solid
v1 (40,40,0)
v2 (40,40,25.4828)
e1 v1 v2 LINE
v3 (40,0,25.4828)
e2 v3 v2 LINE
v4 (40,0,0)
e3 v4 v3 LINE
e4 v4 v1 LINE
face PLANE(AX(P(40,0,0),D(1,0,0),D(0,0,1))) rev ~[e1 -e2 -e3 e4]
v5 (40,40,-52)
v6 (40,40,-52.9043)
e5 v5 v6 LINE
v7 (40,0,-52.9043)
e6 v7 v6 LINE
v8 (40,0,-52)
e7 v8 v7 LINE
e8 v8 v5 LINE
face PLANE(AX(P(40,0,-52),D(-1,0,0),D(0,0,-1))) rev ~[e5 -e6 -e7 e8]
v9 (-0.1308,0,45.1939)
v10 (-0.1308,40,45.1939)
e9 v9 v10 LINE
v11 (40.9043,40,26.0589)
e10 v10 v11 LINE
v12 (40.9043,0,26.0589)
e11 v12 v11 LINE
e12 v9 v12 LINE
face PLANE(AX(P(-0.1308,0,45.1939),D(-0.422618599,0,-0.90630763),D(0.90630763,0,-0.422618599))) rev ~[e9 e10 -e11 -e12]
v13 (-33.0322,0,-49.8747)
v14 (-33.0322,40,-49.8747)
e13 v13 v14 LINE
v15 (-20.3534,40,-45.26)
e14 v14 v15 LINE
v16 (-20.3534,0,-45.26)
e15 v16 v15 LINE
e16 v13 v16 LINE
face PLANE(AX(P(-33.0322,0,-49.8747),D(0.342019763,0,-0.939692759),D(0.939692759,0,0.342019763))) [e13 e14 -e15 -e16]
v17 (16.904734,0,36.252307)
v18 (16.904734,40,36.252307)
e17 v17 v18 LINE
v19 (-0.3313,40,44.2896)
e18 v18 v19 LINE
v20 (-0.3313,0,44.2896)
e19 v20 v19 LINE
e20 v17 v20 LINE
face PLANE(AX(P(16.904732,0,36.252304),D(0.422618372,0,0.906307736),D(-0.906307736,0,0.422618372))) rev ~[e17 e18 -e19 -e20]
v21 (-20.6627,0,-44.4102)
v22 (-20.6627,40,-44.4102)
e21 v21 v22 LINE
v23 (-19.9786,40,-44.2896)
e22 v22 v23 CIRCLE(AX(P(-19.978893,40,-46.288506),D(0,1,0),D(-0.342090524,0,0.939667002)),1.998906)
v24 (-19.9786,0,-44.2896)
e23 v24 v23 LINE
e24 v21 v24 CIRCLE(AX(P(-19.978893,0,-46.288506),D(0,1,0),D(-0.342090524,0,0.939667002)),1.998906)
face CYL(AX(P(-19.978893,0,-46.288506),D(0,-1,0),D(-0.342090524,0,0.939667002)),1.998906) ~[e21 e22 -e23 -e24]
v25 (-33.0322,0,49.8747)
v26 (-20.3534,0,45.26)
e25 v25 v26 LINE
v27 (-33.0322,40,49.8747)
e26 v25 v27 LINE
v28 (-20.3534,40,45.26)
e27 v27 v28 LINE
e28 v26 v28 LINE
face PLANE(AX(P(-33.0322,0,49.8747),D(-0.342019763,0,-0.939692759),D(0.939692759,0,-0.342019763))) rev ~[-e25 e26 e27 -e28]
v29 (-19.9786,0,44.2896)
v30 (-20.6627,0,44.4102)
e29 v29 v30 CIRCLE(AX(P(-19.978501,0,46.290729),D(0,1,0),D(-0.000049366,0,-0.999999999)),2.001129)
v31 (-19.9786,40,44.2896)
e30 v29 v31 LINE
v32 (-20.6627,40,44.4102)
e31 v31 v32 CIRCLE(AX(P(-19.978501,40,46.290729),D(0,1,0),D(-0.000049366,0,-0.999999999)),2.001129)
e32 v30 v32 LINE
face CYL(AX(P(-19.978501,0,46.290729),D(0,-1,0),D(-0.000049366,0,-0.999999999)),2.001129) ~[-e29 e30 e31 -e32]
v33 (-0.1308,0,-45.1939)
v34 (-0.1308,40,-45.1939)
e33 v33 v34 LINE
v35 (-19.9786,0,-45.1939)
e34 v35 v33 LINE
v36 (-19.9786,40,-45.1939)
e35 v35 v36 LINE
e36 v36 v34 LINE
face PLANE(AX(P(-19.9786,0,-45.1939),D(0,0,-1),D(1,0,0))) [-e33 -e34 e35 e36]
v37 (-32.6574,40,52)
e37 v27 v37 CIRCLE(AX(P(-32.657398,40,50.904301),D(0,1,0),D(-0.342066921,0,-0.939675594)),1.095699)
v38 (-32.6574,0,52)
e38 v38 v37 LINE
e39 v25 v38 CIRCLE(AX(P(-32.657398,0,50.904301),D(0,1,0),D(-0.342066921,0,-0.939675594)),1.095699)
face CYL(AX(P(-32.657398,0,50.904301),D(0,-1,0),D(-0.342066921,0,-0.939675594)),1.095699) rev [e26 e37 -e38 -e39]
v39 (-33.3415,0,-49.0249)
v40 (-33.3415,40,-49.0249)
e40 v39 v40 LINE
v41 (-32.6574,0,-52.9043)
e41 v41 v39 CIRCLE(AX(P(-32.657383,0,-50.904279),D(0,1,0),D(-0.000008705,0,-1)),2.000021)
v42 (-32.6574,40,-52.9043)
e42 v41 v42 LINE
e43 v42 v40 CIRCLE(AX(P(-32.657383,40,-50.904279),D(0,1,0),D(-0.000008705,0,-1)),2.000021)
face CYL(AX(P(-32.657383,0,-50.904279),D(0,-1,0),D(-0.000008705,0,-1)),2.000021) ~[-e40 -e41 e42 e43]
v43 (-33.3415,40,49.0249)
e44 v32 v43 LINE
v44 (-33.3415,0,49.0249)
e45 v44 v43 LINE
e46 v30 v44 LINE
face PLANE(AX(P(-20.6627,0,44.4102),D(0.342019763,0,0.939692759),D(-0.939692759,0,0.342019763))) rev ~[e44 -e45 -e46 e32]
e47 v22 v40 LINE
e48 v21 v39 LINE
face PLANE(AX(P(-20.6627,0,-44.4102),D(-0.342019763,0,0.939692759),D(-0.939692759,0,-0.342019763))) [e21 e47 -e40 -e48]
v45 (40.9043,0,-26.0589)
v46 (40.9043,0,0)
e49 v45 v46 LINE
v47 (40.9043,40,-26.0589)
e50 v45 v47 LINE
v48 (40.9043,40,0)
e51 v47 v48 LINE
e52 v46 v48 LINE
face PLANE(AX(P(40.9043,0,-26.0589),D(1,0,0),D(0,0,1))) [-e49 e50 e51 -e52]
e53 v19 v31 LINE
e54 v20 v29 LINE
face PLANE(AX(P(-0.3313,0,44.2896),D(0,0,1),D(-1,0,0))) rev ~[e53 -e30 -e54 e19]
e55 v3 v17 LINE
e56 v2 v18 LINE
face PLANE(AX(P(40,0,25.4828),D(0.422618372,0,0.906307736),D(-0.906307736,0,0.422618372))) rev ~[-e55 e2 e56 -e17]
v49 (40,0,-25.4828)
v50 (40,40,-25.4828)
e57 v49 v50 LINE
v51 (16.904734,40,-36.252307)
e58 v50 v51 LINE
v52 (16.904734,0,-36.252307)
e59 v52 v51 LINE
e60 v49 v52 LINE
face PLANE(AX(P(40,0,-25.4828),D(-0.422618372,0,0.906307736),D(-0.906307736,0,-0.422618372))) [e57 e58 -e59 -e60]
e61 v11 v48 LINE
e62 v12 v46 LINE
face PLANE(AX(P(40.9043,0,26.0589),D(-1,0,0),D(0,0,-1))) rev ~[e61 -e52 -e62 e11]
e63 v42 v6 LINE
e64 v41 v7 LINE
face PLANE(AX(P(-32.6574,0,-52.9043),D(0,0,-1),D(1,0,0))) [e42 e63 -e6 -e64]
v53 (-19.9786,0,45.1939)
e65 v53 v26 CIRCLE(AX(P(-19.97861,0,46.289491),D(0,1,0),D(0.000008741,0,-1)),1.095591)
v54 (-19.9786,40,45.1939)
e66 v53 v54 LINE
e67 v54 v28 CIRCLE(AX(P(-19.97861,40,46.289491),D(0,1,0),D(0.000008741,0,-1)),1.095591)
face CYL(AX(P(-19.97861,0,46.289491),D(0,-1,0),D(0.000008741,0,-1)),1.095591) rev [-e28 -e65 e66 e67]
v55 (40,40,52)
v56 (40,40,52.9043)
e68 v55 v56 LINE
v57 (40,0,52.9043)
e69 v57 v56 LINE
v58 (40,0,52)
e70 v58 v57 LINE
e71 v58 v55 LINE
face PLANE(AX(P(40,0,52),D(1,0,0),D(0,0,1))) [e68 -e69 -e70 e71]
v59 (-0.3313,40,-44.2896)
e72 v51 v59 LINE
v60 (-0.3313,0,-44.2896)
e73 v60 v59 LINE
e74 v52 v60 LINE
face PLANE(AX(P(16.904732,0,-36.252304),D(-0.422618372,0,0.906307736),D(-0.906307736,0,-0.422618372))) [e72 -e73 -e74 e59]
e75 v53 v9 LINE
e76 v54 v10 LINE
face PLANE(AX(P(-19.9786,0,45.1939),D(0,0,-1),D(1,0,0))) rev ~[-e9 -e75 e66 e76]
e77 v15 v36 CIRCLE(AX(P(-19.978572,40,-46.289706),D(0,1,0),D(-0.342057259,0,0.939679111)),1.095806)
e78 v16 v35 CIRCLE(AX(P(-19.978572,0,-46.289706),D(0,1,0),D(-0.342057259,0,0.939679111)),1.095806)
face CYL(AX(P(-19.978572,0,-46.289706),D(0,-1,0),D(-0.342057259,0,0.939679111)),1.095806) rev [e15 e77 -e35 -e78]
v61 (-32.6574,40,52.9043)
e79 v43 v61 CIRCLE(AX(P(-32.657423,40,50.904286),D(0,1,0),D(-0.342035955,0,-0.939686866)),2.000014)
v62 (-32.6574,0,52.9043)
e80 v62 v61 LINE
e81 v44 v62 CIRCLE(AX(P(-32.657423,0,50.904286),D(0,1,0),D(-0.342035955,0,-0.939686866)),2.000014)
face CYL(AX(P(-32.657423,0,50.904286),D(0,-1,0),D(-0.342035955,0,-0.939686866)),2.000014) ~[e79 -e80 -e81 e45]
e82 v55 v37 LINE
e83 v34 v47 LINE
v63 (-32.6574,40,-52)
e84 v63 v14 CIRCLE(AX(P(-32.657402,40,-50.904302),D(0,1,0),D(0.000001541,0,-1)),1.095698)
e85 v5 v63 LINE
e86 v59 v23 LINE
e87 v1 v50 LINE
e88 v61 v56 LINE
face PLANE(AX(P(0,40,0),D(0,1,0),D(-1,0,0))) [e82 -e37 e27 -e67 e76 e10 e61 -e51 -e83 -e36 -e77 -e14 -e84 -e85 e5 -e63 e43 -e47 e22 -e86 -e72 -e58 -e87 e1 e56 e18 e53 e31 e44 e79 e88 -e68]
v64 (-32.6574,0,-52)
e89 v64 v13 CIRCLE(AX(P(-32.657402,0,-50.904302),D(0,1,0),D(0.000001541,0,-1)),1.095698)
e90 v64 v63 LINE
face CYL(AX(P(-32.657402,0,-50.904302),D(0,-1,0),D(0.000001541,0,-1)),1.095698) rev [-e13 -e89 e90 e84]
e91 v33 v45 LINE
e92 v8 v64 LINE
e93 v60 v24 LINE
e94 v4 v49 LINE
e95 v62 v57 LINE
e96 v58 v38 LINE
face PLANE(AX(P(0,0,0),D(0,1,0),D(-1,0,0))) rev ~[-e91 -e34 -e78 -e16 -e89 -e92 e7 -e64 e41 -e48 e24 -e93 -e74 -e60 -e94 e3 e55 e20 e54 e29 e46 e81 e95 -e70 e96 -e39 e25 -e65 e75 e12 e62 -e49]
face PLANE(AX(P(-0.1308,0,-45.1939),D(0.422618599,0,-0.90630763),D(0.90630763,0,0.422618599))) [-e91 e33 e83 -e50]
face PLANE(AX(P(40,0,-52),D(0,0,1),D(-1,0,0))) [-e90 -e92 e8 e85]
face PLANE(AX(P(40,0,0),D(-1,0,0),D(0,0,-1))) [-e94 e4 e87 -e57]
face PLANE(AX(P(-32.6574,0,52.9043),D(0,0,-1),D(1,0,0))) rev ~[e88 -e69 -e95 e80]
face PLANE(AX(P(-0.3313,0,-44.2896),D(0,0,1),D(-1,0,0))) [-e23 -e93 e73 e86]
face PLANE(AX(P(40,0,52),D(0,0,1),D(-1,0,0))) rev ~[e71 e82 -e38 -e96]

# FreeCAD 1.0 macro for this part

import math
import FreeCAD as App
import Part
import Sketcher
from FreeCAD import Vector
Q = App.Units.Quantity

doc = App.newDocument("Part")
body = doc.addObject("PartDesign::Body", "Body")

# Sketch on XZ plane
sketch1 = body.newObject("Sketcher::SketchObject", "Sketch")
sketch1.AttachmentSupport = (doc.getObject("XZ_Plane"), [""])
sketch1.MapMode = "FlatFace"
sketch1.addGeometry([
    Part.LineSegment(Vector(40, 25.48, 0), Vector(-0.33, 44.29, 0)),  # 0
    Part.LineSegment(Vector(-0.33, 44.29, 0), Vector(-19.98, 44.29, 0)),  # 1
    Part.ArcOfCircle(Part.Circle(Vector(-19.98, 46.29, 0), Vector(0, 0, 1), 2), math.radians(-109.99), math.radians(-90)),  # 2
    Part.LineSegment(Vector(-20.66, 44.41, 0), Vector(-33.34, 49.02, 0)),  # 3
    Part.ArcOfCircle(Part.Circle(Vector(-32.66, 50.9, 0), Vector(0, 0, 1), 2), math.radians(90), math.radians(250)),  # 4
    Part.LineSegment(Vector(-32.66, 52.9, 0), Vector(40, 52.9, 0)),  # 5
    Part.LineSegment(Vector(40, 52.9, 0), Vector(40, 52, 0)),  # 6
    Part.LineSegment(Vector(40, 52, 0), Vector(-32.66, 52, 0)),  # 7
    Part.ArcOfCircle(Part.Circle(Vector(-32.66, 50.9, 0), Vector(0, 0, 1), 1.1), math.radians(90), math.radians(250)),  # 8
    Part.LineSegment(Vector(-33.03, 49.87, 0), Vector(-20.35, 45.26, 0)),  # 9
    Part.ArcOfCircle(Part.Circle(Vector(-19.98, 46.29, 0), Vector(0, 0, 1), 1.1), math.radians(-110), math.radians(-90)),  # 10
    Part.LineSegment(Vector(-19.98, 45.19, 0), Vector(-0.13, 45.19, 0)),  # 11
    Part.LineSegment(Vector(-0.13, 45.19, 0), Vector(40.9, 26.06, 0)),  # 12
    Part.LineSegment(Vector(40.9, 26.06, 0), Vector(40.9, -26.06, 0)),  # 13
    Part.LineSegment(Vector(40.9, -26.06, 0), Vector(-0.13, -45.19, 0)),  # 14
    Part.LineSegment(Vector(-0.13, -45.19, 0), Vector(-19.98, -45.19, 0)),  # 15
    Part.ArcOfCircle(Part.Circle(Vector(-19.98, -46.29, 0), Vector(0, 0, 1), 1.1), math.radians(90), math.radians(110)),  # 16
    Part.LineSegment(Vector(-20.35, -45.26, 0), Vector(-33.03, -49.87, 0)),  # 17
    Part.ArcOfCircle(Part.Circle(Vector(-32.66, -50.9, 0), Vector(0, 0, 1), 1.1), math.radians(110), math.radians(270)),  # 18
    Part.LineSegment(Vector(-32.66, -52, 0), Vector(40, -52, 0)),  # 19
    Part.LineSegment(Vector(40, -52, 0), Vector(40, -52.9, 0)),  # 20
    Part.LineSegment(Vector(40, -52.9, 0), Vector(-32.66, -52.9, 0)),  # 21
    Part.ArcOfCircle(Part.Circle(Vector(-32.66, -50.9, 0), Vector(0, 0, 1), 2), math.radians(110), math.radians(270)),  # 22
    Part.LineSegment(Vector(-33.34, -49.02, 0), Vector(-20.66, -44.41, 0)),  # 23
    Part.ArcOfCircle(Part.Circle(Vector(-19.98, -46.29, 0), Vector(0, 0, 1), 2), math.radians(90), math.radians(110)),  # 24
    Part.LineSegment(Vector(-19.98, -44.29, 0), Vector(-0.33, -44.29, 0)),  # 25
    Part.LineSegment(Vector(-0.33, -44.29, 0), Vector(40, -25.48, 0)),  # 26
    Part.LineSegment(Vector(40, -25.48, 0), Vector(40, 25.48, 0)),  # 27
], False)
sketch1.addConstraint([
    Sketcher.Constraint("Coincident", 0, 2, 1, 1),
    Sketcher.Constraint("Tangent", 1, 2, 2, 2),
    Sketcher.Constraint("Tangent", 2, 1, 3, 1),
    Sketcher.Constraint("Tangent", 3, 2, 4, 2),
    Sketcher.Constraint("Tangent", 4, 1, 5, 1),
    Sketcher.Constraint("Coincident", 5, 2, 6, 1),
    Sketcher.Constraint("Coincident", 6, 2, 7, 1),
    Sketcher.Constraint("Tangent", 7, 2, 8, 1),
    Sketcher.Constraint("Tangent", 8, 2, 9, 1),
    Sketcher.Constraint("Tangent", 9, 2, 10, 1),
    Sketcher.Constraint("Tangent", 10, 2, 11, 1),
    Sketcher.Constraint("Coincident", 11, 2, 12, 1),
    Sketcher.Constraint("Coincident", 12, 2, 13, 1),
    Sketcher.Constraint("Coincident", 13, 2, 14, 1),
    Sketcher.Constraint("Coincident", 14, 2, 15, 1),
    Sketcher.Constraint("Tangent", 15, 2, 16, 1),
    Sketcher.Constraint("Tangent", 16, 2, 17, 1),
    Sketcher.Constraint("Tangent", 17, 2, 18, 1),
    Sketcher.Constraint("Tangent", 18, 2, 19, 1),
    Sketcher.Constraint("Coincident", 19, 2, 20, 1),
    Sketcher.Constraint("Coincident", 20, 2, 21, 1),
    Sketcher.Constraint("Tangent", 21, 2, 22, 2),
    Sketcher.Constraint("Tangent", 22, 1, 23, 1),
    Sketcher.Constraint("Tangent", 23, 2, 24, 2),
    Sketcher.Constraint("Tangent", 24, 1, 25, 1),
    Sketcher.Constraint("Coincident", 25, 2, 26, 1),
    Sketcher.Constraint("Coincident", 26, 2, 27, 1),
    Sketcher.Constraint("Coincident", 27, 2, 0, 1),
    Sketcher.Constraint("Horizontal", 1),
    Sketcher.Constraint("Horizontal", 5),
    Sketcher.Constraint("Vertical", 6),
    Sketcher.Constraint("Horizontal", 7),
    Sketcher.Constraint("Horizontal", 11),
    Sketcher.Constraint("Vertical", 13),
    Sketcher.Constraint("Horizontal", 15),
    Sketcher.Constraint("Horizontal", 19),
    Sketcher.Constraint("Vertical", 20),
    Sketcher.Constraint("Horizontal", 21),
    Sketcher.Constraint("Horizontal", 25),
    Sketcher.Constraint("Vertical", 27),
    Sketcher.Constraint("Coincident", 8, 3, 4, 3),
    Sketcher.Constraint("Coincident", 22, 3, 18, 3),
    Sketcher.Constraint("Equal", 8, 10),
    Sketcher.Constraint("Equal", 10, 16),
    Sketcher.Constraint("Equal", 16, 18),
    Sketcher.Constraint("Equal", 4, 22),
    Sketcher.Constraint("Symmetric", 10, 3, 16, 3, -1),
    Sketcher.Constraint("Symmetric", 4, 3, 18, 3, -1),
    Sketcher.Constraint("Symmetric", 2, 1, 23, 2, -1),
    Sketcher.Constraint("Symmetric", 0, 2, 25, 2, -1),
    Sketcher.Constraint("Parallel", 3, 9),
    Sketcher.Constraint("Parallel", 0, 12),
    Sketcher.Constraint("Parallel", 14, 26),
    Sketcher.Constraint("Vertical", 2, 3, 10, 3),
    Sketcher.Constraint("Vertical", 11, 2, 14, 2),
    Sketcher.Constraint("Vertical", 6, 2, 19, 2),
    Sketcher.Constraint("Vertical", 20, 2, 26, 2),
    Sketcher.Constraint("Equal", 3, 9),
    Sketcher.Constraint("Equal", 12, 14),
    Sketcher.Constraint("Radius", 4, 2.0),
    Sketcher.Constraint("Angle", 3, Q("160 deg")),
    Sketcher.Constraint("Angle", 0, Q("155 deg")),
    Sketcher.Constraint("DistanceY", 6, 2, 6, 1, 0.9043),
    Sketcher.Constraint("DistanceX", -1, 1, 5, 2, 40.0),
    Sketcher.Constraint("DistanceY", -1, 1, 6, 2, 52.0),
    Sketcher.Constraint("DistanceY", 0, 2, 6, 2, 7.7104),
    Sketcher.Constraint("DistanceX", 6, 2, 12, 2, 0.9043),
    Sketcher.Constraint("DistanceX", 1, 2, 1, 1, 19.6473),
    Sketcher.Constraint("DistanceX", 5, 1, 5, 2, 72.6574),
    Sketcher.Constraint("DistanceX", 11, 1, 11, 2, 19.8478),
])
pad1 = body.newObject("PartDesign::Pad", "Pad")
pad1.Profile = sketch1
pad1.Length = 40
pad1.Reversed = True

doc.recompute()
